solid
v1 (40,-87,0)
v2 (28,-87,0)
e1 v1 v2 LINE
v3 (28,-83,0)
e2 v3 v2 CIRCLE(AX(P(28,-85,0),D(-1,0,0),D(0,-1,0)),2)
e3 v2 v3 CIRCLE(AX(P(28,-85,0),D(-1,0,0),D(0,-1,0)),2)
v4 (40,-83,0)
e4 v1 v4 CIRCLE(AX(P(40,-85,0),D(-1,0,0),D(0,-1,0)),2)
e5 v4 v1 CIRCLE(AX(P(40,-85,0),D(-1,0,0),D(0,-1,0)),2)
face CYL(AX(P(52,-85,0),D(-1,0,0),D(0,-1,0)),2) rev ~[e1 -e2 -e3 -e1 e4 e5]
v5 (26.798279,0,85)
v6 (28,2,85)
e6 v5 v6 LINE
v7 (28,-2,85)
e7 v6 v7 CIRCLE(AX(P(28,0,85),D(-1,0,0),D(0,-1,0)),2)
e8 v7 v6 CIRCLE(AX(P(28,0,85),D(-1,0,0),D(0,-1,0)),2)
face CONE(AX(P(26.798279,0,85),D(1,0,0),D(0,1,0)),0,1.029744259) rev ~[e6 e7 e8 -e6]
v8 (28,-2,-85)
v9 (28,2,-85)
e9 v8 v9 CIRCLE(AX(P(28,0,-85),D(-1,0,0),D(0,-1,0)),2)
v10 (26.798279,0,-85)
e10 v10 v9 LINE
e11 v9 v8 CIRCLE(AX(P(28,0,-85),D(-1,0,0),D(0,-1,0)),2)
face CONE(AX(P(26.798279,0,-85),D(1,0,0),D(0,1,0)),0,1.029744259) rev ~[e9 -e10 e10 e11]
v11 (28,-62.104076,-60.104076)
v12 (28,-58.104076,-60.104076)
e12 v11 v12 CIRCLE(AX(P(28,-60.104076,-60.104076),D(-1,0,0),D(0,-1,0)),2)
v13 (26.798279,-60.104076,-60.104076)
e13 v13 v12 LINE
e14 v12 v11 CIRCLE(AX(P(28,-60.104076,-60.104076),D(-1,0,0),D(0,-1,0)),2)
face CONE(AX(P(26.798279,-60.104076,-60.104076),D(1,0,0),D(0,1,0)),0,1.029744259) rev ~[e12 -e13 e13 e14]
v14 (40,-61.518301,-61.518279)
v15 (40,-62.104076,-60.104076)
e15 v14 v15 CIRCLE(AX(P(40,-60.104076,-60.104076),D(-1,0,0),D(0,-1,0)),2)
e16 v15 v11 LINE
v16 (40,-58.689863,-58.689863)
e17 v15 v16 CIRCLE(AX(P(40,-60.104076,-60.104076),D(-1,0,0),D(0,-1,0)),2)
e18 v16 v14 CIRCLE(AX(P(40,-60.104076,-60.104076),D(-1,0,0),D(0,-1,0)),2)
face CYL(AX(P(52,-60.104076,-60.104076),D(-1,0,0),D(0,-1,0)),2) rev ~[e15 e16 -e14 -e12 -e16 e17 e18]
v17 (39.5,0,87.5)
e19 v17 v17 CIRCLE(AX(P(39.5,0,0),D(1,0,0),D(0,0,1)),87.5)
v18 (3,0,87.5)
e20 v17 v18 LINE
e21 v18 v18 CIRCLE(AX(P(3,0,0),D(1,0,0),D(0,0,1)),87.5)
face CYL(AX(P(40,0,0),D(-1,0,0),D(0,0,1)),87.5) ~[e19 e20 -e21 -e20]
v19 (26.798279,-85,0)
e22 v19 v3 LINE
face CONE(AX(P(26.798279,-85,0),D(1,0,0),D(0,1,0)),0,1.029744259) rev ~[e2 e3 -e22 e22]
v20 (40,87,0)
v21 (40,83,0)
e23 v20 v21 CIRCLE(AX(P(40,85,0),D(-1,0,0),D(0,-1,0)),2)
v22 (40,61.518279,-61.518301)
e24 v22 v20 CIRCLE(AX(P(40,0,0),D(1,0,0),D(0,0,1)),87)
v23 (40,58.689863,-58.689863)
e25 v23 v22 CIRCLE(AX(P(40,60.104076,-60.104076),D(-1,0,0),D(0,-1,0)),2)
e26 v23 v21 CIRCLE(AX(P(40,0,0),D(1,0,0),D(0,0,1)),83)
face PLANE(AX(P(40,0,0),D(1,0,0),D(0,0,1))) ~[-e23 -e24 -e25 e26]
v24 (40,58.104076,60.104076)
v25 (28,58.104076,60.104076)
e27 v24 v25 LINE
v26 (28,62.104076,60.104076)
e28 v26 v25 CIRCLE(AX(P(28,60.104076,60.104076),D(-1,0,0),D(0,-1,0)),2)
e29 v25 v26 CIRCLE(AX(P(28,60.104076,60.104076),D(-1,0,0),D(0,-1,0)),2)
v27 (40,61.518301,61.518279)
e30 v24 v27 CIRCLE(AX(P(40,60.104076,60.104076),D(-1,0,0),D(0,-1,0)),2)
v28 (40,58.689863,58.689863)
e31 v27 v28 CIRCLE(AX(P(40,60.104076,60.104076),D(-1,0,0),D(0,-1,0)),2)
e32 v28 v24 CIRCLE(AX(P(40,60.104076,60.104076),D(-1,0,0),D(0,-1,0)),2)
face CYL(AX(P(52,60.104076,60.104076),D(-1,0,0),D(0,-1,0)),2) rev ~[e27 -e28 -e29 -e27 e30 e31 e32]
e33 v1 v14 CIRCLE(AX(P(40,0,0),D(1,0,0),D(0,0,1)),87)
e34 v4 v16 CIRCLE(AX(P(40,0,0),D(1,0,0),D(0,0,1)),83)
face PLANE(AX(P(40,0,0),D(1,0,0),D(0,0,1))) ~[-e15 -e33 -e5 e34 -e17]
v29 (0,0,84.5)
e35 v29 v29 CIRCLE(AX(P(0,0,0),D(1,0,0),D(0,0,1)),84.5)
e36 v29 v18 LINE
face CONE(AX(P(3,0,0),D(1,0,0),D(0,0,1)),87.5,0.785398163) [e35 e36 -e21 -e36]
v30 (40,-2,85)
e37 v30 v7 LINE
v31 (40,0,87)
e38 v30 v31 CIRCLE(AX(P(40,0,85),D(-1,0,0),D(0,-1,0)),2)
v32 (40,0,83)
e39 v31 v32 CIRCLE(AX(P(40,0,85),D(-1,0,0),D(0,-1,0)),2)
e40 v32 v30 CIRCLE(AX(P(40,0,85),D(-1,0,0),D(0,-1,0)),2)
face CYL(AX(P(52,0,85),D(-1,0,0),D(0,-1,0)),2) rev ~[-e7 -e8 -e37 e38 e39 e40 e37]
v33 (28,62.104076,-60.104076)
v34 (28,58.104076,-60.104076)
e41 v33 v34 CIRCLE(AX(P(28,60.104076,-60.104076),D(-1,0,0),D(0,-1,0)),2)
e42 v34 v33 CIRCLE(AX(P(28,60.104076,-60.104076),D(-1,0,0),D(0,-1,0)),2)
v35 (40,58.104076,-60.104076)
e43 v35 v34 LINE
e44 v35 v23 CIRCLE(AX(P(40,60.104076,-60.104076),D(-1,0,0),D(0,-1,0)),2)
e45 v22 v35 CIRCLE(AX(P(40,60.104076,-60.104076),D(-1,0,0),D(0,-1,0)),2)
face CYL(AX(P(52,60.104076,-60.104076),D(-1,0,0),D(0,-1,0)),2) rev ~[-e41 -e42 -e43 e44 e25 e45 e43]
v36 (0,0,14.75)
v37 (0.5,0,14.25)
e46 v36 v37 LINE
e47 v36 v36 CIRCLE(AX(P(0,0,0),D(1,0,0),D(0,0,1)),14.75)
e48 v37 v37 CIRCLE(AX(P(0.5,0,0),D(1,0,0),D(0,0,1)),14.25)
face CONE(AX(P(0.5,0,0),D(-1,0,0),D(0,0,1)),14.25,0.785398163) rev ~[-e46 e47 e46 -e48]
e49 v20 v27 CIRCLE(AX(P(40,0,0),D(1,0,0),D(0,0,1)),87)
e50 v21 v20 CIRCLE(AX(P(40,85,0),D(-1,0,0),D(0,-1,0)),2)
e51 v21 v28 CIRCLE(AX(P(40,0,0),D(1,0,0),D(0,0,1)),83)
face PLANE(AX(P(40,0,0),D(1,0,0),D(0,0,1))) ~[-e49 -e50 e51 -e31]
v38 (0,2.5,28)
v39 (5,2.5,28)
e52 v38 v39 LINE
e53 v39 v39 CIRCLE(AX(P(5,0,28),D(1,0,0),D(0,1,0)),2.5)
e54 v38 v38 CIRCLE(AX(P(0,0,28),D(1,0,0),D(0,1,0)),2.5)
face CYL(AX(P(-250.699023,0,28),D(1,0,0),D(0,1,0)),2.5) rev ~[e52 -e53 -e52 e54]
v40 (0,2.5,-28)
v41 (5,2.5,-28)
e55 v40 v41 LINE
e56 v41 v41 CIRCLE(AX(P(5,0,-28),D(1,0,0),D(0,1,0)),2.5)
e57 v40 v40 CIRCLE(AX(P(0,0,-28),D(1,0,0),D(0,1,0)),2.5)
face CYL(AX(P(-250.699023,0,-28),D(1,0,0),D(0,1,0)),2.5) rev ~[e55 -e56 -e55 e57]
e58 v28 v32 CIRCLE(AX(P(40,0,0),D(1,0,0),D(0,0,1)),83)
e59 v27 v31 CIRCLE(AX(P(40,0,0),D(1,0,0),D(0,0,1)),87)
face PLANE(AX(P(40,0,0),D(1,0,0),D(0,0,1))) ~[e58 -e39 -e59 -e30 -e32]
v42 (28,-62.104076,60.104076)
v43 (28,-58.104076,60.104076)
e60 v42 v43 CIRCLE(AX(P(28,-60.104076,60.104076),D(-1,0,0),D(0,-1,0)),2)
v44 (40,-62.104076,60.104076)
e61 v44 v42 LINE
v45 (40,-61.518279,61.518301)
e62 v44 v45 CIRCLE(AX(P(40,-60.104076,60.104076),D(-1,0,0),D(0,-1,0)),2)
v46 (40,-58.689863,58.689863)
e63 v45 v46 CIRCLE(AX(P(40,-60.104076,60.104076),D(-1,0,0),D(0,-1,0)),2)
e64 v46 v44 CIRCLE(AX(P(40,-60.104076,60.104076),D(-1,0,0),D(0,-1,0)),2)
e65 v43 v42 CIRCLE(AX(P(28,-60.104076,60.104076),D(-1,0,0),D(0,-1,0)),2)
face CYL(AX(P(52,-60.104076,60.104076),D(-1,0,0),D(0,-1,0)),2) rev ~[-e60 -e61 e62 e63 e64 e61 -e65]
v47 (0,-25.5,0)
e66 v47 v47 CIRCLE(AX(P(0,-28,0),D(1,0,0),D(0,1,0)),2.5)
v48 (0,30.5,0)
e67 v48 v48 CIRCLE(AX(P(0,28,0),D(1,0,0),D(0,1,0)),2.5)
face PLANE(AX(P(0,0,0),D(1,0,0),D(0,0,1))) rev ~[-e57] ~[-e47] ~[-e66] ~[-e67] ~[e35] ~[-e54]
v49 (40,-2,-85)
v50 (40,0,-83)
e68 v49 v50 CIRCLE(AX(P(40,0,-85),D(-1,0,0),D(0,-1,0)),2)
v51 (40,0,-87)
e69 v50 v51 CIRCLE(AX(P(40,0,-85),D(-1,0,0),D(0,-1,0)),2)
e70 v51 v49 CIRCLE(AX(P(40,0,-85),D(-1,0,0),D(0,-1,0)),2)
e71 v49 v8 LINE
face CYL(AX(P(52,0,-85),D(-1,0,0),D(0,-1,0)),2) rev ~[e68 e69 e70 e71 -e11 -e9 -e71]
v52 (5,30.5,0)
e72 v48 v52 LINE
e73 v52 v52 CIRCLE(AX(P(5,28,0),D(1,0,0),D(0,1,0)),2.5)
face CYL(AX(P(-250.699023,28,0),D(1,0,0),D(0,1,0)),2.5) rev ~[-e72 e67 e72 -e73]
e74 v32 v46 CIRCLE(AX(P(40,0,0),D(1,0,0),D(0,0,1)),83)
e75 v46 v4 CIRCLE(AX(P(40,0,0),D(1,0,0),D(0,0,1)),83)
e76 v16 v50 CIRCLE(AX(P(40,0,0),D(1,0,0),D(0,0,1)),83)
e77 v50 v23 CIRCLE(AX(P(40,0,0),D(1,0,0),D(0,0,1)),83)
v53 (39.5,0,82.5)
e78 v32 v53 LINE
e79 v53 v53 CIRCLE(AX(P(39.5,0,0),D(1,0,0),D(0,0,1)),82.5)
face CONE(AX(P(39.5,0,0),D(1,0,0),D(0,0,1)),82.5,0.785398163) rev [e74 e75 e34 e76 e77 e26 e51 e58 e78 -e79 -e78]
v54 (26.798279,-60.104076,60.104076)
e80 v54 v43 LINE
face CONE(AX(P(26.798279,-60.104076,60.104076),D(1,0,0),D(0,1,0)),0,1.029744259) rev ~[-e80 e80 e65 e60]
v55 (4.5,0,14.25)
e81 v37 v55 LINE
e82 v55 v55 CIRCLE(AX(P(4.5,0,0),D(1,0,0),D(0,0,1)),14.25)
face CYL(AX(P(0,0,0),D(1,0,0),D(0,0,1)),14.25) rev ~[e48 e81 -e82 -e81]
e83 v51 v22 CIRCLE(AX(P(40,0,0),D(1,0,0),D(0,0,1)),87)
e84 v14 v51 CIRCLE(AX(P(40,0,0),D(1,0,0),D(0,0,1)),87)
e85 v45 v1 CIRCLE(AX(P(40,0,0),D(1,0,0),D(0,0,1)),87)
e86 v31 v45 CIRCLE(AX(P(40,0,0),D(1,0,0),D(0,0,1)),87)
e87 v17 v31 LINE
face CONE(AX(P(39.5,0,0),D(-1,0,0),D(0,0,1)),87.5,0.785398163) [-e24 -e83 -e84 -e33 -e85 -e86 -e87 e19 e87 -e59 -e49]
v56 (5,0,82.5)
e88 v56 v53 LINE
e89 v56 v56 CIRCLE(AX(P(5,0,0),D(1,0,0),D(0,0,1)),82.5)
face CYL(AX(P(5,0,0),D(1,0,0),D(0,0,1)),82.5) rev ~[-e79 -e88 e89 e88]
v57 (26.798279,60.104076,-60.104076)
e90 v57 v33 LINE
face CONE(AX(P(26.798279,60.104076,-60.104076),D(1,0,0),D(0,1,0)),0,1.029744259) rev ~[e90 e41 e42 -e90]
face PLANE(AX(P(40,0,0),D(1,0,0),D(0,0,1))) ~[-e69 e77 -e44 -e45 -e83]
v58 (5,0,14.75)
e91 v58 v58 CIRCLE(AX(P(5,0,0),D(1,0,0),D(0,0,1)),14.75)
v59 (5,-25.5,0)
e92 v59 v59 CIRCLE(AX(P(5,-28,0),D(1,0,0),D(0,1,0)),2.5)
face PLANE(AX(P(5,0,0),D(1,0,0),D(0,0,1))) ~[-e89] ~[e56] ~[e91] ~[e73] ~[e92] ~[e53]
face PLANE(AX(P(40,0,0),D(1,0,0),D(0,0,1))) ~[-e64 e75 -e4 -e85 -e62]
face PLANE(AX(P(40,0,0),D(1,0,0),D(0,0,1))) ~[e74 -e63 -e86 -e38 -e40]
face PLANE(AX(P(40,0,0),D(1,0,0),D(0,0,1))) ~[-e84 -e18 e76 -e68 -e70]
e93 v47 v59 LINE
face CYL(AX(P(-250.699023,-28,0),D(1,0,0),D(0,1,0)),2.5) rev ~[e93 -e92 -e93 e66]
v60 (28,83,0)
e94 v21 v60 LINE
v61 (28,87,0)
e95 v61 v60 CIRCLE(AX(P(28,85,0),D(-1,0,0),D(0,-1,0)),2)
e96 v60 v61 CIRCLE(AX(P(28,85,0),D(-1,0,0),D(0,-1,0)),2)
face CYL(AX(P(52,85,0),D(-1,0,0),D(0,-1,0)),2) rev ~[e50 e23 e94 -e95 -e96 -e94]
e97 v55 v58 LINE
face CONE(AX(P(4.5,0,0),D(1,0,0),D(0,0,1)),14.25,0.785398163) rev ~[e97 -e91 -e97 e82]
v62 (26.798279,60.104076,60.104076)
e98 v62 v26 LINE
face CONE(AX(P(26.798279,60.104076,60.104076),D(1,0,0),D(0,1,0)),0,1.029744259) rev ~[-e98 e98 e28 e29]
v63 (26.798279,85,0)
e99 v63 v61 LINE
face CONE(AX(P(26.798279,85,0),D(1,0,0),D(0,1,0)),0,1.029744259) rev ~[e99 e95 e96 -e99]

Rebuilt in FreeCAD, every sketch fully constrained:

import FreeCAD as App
import Part
import Sketcher

V = App.Vector


def edges_at(feature, points):
    """Names of the edges that pass closest to the given points."""
    edges = feature.Shape.Edges
    near = lambda p: min(range(len(edges)), key=lambda i: edges[i].distToShape(Part.Vertex(*p))[0])
    return sorted({f"Edge{near(p) + 1}" for p in points})

doc = App.newDocument("Part")
body = doc.addObject("PartDesign::Body", "Body")

# Sketch on XZ plane
sketch1 = doc.addObject("Sketcher::SketchObject", "Sketch")
body.addObject(sketch1)
sketch1.AttachmentSupport = (doc.XZ_Plane, [""])
sketch1.MapMode = "FlatFace"
sketch1.addGeometry(Part.LineSegment(V(0, 88, 0), V(0, 14, 0)), False)
sketch1.addGeometry(Part.LineSegment(V(0, 14, 0), V(5, 14, 0)), False)
sketch1.addGeometry(Part.LineSegment(V(5, 14, 0), V(5, 82, 0)), False)
sketch1.addGeometry(Part.LineSegment(V(5, 82, 0), V(40, 82, 0)), False)
sketch1.addGeometry(Part.LineSegment(V(40, 82, 0), V(40, 88, 0)), False)
sketch1.addGeometry(Part.LineSegment(V(40, 88, 0), V(0, 88, 0)), False)
sketch1.addConstraint(Sketcher.Constraint("Coincident", 0, 2, 1, 1))
sketch1.addConstraint(Sketcher.Constraint("Coincident", 1, 2, 2, 1))
sketch1.addConstraint(Sketcher.Constraint("Coincident", 2, 2, 3, 1))
sketch1.addConstraint(Sketcher.Constraint("Coincident", 3, 2, 4, 1))
sketch1.addConstraint(Sketcher.Constraint("Coincident", 4, 2, 5, 1))
sketch1.addConstraint(Sketcher.Constraint("Coincident", 5, 2, 0, 1))
sketch1.addConstraint(Sketcher.Constraint("Vertical", 0))
sketch1.addConstraint(Sketcher.Constraint("Horizontal", 1))
sketch1.addConstraint(Sketcher.Constraint("Vertical", 2))
sketch1.addConstraint(Sketcher.Constraint("Horizontal", 3))
sketch1.addConstraint(Sketcher.Constraint("Vertical", 4))
sketch1.addConstraint(Sketcher.Constraint("Horizontal", 5))
sketch1.addConstraint(Sketcher.Constraint("PointOnObject", 0, 2, -2))
sketch1.addConstraint(Sketcher.Constraint("Equal", 1, 4))
sketch1.addConstraint(Sketcher.Constraint("DistanceX", 1, 1, 1, 2, 5.0))
sketch1.addConstraint(Sketcher.Constraint("DistanceX", 3, 1, 3, 2, 35.0))
sketch1.addConstraint(Sketcher.Constraint("DistanceY", 0, 2, 0, 1, 73.25))
sketch1.addConstraint(Sketcher.Constraint("DistanceY", -1, 1, 2, 2, 82.5))
revolution = doc.addObject("PartDesign::Revolution", "Revolution")
body.addObject(revolution)
revolution.Profile = sketch1
revolution.ReferenceAxis = (sketch1, ["H_Axis"])
revolution.Angle = 360
doc.recompute()

chamfer = doc.addObject("PartDesign::Chamfer", "Chamfer")
body.addObject(chamfer)
chamfer.Base = (revolution, edges_at(revolution, [(0, 0, -87.5)]))
chamfer.Size = 3
doc.recompute()

chamfer2 = doc.addObject("PartDesign::Chamfer", "Chamfer001")
body.addObject(chamfer2)
chamfer2.Base = (chamfer, edges_at(chamfer, [
    (40, 0, -87.5),
    (40, 0, -82.5),
    (5, 0, -14.25),
    (0, 0, -14.25),
]))
chamfer2.Size = 0.5

# Sketch on YZ plane
sketch2 = doc.addObject("Sketcher::SketchObject", "Sketch001")
body.addObject(sketch2)
sketch2.AttachmentSupport = (doc.YZ_Plane, [""])
sketch2.MapMode = "FlatFace"
sketch2.addGeometry(Part.Circle(V(0, 28, 0), V(0, 0, 1), 2.5), False)
sketch2.addGeometry(Part.Circle(V(28, 0, 0), V(0, 0, 1), 2.5), False)
sketch2.addGeometry(Part.Circle(V(0, -28, 0), V(0, 0, 1), 2.5), False)
sketch2.addGeometry(Part.Circle(V(-28, 0, 0), V(0, 0, 1), 2.5), False)
sketch2.addConstraint(Sketcher.Constraint("Equal", 0, 1))
sketch2.addConstraint(Sketcher.Constraint("Equal", 1, 2))
sketch2.addConstraint(Sketcher.Constraint("Equal", 2, 3))
sketch2.addConstraint(Sketcher.Constraint("Symmetric", 0, 3, 2, 3, -1, 1))
sketch2.addConstraint(Sketcher.Constraint("Symmetric", 1, 3, 3, 3, -1, 1))
sketch2.addConstraint(Sketcher.Constraint("PointOnObject", 0, 3, -2))
sketch2.addConstraint(Sketcher.Constraint("PointOnObject", 1, 3, -1))
sketch2.addConstraint(Sketcher.Constraint("Diameter", 0, 5.0))
sketch2.addConstraint(Sketcher.Constraint("DistanceY", -1, 1, 0, 3, 28.0))
sketch2.addConstraint(Sketcher.Constraint("DistanceX", -1, 1, 1, 3, 28.0))
doc.recompute()
hole = doc.addObject("PartDesign::Hole", "Hole")
body.addObject(hole)
hole.Profile = sketch2
hole.ThreadType = "None"
hole.Diameter = 5
hole.DepthType = "ThroughAll"
hole.Reversed = True

# Sketch on YZ plane
sketch3 = doc.addObject("Sketcher::SketchObject", "Sketch002")
body.addObject(sketch3)
sketch3.AttachmentSupport = (doc.YZ_Plane, [""])
sketch3.MapMode = "FlatFace"
sketch3.AttachmentOffset = App.Placement(V(0, 0, 40), App.Rotation())
sketch3.addGeometry(Part.Circle(V(0, 85, 0), V(0, 0, 1), 2), False)
sketch3.addGeometry(Part.Circle(V(-85, 0, 0), V(0, 0, 1), 2), False)
sketch3.addGeometry(Part.Circle(V(-60.1, 60.1, 0), V(0, 0, 1), 2), False)
sketch3.addGeometry(Part.Circle(V(-60.1, -60.1, 0), V(0, 0, 1), 2), False)
sketch3.addGeometry(Part.Circle(V(0, -85, 0), V(0, 0, 1), 2), False)
sketch3.addGeometry(Part.Circle(V(60.1, -60.1, 0), V(0, 0, 1), 2), False)
sketch3.addGeometry(Part.Circle(V(85, 0, 0), V(0, 0, 1), 2), False)
sketch3.addGeometry(Part.Circle(V(60.1, 60.1, 0), V(0, 0, 1), 2), False)
sketch3.addConstraint(Sketcher.Constraint("Equal", 0, 1))
sketch3.addConstraint(Sketcher.Constraint("Equal", 1, 2))
sketch3.addConstraint(Sketcher.Constraint("Equal", 2, 3))
sketch3.addConstraint(Sketcher.Constraint("Equal", 3, 4))
sketch3.addConstraint(Sketcher.Constraint("Equal", 4, 5))
sketch3.addConstraint(Sketcher.Constraint("Equal", 5, 6))
sketch3.addConstraint(Sketcher.Constraint("Equal", 6, 7))
sketch3.addConstraint(Sketcher.Constraint("Symmetric", 0, 3, 4, 3, -1, 1))
sketch3.addConstraint(Sketcher.Constraint("Symmetric", 2, 3, 5, 3, -1, 1))
sketch3.addConstraint(Sketcher.Constraint("Symmetric", 1, 3, 6, 3, -1, 1))
sketch3.addConstraint(Sketcher.Constraint("Symmetric", 3, 3, 7, 3, -1, 1))
sketch3.addConstraint(Sketcher.Constraint("Symmetric", 3, 3, 5, 3, -2))
sketch3.addConstraint(Sketcher.Constraint("PointOnObject", 0, 3, -2))
sketch3.addConstraint(Sketcher.Constraint("PointOnObject", 1, 3, -1))
sketch3.addConstraint(Sketcher.Constraint("Diameter", 0, 4.0))
sketch3.addConstraint(Sketcher.Constraint("DistanceY", -1, 1, 0, 3, 85.0))
sketch3.addConstraint(Sketcher.Constraint("DistanceX", 1, 3, -1, 1, 85.0))
sketch3.addConstraint(Sketcher.Constraint("DistanceX", 2, 3, -1, 1, 60.104076))
sketch3.addConstraint(Sketcher.Constraint("DistanceY", -1, 1, 2, 3, 60.104076))
doc.recompute()
hole2 = doc.addObject("PartDesign::Hole", "Hole001")
body.addObject(hole2)
hole2.Profile = sketch3
hole2.ThreadType = "None"
hole2.Diameter = 4
hole2.DepthType = "Dimension"
hole2.Depth = 12
hole2.DrillPoint = "Angled"
hole2.DrillPointAngle = 118

doc.recompute()
